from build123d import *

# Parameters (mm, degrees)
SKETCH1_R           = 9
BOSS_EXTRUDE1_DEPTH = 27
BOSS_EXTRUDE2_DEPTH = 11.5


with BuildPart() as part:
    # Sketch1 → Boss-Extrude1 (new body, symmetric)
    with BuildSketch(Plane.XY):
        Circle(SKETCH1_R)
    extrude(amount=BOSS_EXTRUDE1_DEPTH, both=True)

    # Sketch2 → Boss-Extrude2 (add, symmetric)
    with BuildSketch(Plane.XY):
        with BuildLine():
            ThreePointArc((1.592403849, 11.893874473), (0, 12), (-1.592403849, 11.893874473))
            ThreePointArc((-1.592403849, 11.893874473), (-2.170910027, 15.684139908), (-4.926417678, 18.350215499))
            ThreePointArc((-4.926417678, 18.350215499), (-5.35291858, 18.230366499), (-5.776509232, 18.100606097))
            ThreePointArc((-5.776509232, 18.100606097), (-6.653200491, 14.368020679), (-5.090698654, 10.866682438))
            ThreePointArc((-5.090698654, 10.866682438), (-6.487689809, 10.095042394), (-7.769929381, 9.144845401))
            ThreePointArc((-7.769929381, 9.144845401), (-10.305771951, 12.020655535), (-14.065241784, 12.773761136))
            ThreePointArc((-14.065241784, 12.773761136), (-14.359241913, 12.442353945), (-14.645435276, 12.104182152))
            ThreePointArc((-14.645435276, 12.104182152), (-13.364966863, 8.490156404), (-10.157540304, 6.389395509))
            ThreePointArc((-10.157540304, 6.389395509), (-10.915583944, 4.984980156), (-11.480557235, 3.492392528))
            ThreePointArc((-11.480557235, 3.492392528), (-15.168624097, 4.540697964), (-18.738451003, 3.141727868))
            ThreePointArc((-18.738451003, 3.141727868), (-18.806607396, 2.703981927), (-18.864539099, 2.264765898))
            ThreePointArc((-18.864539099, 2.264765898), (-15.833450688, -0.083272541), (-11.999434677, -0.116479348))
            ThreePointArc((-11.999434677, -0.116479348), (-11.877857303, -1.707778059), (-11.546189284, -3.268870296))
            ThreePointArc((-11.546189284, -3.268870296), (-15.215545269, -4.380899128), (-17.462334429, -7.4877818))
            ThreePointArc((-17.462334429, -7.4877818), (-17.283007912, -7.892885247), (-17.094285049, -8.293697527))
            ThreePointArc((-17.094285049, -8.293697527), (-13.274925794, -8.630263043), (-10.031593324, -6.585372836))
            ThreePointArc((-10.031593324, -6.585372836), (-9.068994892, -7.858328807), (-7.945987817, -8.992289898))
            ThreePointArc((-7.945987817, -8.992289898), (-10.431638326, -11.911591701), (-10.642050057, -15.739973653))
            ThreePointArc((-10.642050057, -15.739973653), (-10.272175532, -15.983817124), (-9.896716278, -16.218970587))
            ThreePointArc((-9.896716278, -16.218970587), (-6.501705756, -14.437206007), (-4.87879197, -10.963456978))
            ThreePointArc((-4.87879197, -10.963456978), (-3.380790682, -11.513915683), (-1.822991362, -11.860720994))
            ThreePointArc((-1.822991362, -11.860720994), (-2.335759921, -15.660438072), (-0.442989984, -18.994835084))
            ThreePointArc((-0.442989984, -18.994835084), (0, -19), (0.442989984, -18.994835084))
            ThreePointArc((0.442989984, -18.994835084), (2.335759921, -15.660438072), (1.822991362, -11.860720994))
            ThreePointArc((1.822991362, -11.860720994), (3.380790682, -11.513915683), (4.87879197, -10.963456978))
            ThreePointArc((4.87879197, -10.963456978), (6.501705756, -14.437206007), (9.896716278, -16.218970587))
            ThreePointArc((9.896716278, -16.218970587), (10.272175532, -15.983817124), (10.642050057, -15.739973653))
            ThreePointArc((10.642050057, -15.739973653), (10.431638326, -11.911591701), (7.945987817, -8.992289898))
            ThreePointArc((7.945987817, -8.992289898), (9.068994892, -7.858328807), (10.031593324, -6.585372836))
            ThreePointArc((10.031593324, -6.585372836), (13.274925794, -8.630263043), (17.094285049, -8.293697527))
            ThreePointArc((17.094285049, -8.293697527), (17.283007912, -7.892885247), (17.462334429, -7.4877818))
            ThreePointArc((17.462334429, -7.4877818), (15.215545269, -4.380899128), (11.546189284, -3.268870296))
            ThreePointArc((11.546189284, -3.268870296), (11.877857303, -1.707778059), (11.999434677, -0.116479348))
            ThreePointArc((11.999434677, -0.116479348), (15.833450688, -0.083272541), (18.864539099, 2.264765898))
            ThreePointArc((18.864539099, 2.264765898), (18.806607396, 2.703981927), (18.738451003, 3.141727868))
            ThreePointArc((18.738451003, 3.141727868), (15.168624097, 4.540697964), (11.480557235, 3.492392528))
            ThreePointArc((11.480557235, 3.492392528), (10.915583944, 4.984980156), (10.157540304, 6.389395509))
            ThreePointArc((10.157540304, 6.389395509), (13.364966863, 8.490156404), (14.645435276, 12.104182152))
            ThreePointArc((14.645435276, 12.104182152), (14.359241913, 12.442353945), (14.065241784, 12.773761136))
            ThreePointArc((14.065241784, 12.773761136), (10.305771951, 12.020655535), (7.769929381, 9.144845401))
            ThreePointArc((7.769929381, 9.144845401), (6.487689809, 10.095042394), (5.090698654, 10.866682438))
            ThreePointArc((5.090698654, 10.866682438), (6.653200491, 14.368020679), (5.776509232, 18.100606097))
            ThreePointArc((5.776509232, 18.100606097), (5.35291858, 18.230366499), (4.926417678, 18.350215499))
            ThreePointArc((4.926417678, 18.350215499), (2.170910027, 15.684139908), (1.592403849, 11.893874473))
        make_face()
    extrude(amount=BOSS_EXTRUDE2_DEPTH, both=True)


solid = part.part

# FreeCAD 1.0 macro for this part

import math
import FreeCAD as App
import Part
import Sketcher
Q = App.Units.Quantity

doc = App.newDocument("Part")
body = doc.addObject("PartDesign::Body", "Body")

# Sketch on XY plane
sketch1 = doc.addObject("Sketcher::SketchObject", "Sketch")
body.addObject(sketch1)
sketch1.AttachmentSupport = (doc.XY_Plane, [""])
sketch1.MapMode = "FlatFace"
sketch1.addGeometry(Part.Circle(App.Vector(0, 0, 0), App.Vector(0, 0, 1), 9), False)
sketch1.addConstraint([
    Sketcher.Constraint("Coincident", 0, 3, -1, 1),
    Sketcher.Constraint("Diameter", 0, Q("18 mm")),
])
pad1 = doc.addObject("PartDesign::Pad", "Pad")
body.addObject(pad1)
pad1.Profile = sketch1
pad1.Length = 54
pad1.Midplane = True

# Sketch on XY plane
sketch2 = doc.addObject("Sketcher::SketchObject", "Sketch001")
body.addObject(sketch2)
sketch2.AttachmentSupport = (doc.XY_Plane, [""])
sketch2.MapMode = "FlatFace"
sketch2.addGeometry([
    Part.ArcOfCircle(Part.Circle(App.Vector(0, 0, 0), App.Vector(0, 0, 1), 12), math.radians(82.37), math.radians(97.63)),  # 0
    Part.ArcOfCircle(Part.Circle(App.Vector(-7.5, 12.9, 0), App.Vector(0, 0, 1), 6), math.radians(-10), math.radians(65)),  # 1
    Part.ArcOfCircle(Part.Circle(App.Vector(0, 0, 0), App.Vector(0, 0, 1), 19), math.radians(105.03), math.radians(107.7)),  # 2
    Part.ArcOfCircle(Part.Circle(App.Vector(-0.7, 14.9, 0), App.Vector(0, 0, 1), 6), math.radians(148), math.radians(223)),  # 3
    Part.ArcOfCircle(Part.Circle(App.Vector(0, 0, 0), App.Vector(0, 0, 1), 12), math.radians(115.1), math.radians(130.35)),  # 4
    Part.ArcOfCircle(Part.Circle(App.Vector(-13.3, 6.8, 0), App.Vector(0, 0, 1), 6), math.radians(23), math.radians(97)),  # 5
    Part.ArcOfCircle(Part.Circle(App.Vector(0, 0, 0), App.Vector(0, 0, 1), 19), math.radians(137.75), math.radians(140.43)),  # 6
    Part.ArcOfCircle(Part.Circle(App.Vector(-8.6, 12.2, 0), App.Vector(0, 0, 1), 6), math.radians(-179), math.radians(-105)),  # 7
    Part.ArcOfCircle(Part.Circle(App.Vector(0, 0, 0), App.Vector(0, 0, 1), 12), math.radians(147.83), math.radians(163.08)),  # 8
    Part.ArcOfCircle(Part.Circle(App.Vector(-14.9, -1.5, 0), App.Vector(0, 0, 1), 6), math.radians(55), math.radians(130)),  # 9
    Part.ArcOfCircle(Part.Circle(App.Vector(0, 0, 0), App.Vector(0, 0, 1), 19), math.radians(170.48), math.radians(173.15)),  # 10
    Part.ArcOfCircle(Part.Circle(App.Vector(-13.9, 5.6, 0), App.Vector(0, 0, 1), 6), math.radians(-146), math.radians(-72)),  # 11
    Part.ArcOfCircle(Part.Circle(App.Vector(0, 0, 0), App.Vector(0, 0, 1), 12), math.radians(-179.44), math.radians(-164.19)),  # 12
    Part.ArcOfCircle(Part.Circle(App.Vector(-11.7, -9.3, 0), App.Vector(0, 0, 1), 6), math.radians(88), math.radians(163)),  # 13
    Part.ArcOfCircle(Part.Circle(App.Vector(0, 0, 0), App.Vector(0, 0, 1), 19), math.radians(-156.79), math.radians(-154.12)),  # 14
    Part.ArcOfCircle(Part.Circle(App.Vector(-14.7, -2.8, 0), App.Vector(0, 0, 1), 6), math.radians(-114), math.radians(-39)),  # 15
    Part.ArcOfCircle(Part.Circle(App.Vector(0, 0, 0), App.Vector(0, 0, 1), 12), math.radians(-146.72), math.radians(-131.47)),  # 16
    Part.ArcOfCircle(Part.Circle(App.Vector(-4.9, -14.1, 0), App.Vector(0, 0, 1), 6), math.radians(121), math.radians(195)),  # 17
    Part.ArcOfCircle(Part.Circle(App.Vector(0, 0, 0), App.Vector(0, 0, 1), 19), math.radians(-124.06), math.radians(-121.39)),  # 18
    Part.ArcOfCircle(Part.Circle(App.Vector(-10.8, -10.3, 0), App.Vector(0, 0, 1), 6), math.radians(-81), math.radians(-6)),  # 19
    Part.ArcOfCircle(Part.Circle(App.Vector(0, 0, 0), App.Vector(0, 0, 1), 12), math.radians(-113.99), math.radians(-98.74)),  # 20
    Part.ArcOfCircle(Part.Circle(App.Vector(3.6, -14.5, 0), App.Vector(0, 0, 1), 6), math.radians(154), math.radians(228)),  # 21
    Part.ArcOfCircle(Part.Circle(App.Vector(0, 0, 0), App.Vector(0, 0, 1), 19), math.radians(-91.34), math.radians(-88.66)),  # 22
    Part.ArcOfCircle(Part.Circle(App.Vector(-3.6, -14.5, 0), App.Vector(0, 0, 1), 6), math.radians(-48), math.radians(26)),  # 23
    Part.ArcOfCircle(Part.Circle(App.Vector(0, 0, 0), App.Vector(0, 0, 1), 12), math.radians(-81.26), math.radians(-66.01)),  # 24
    Part.ArcOfCircle(Part.Circle(App.Vector(10.8, -10.3, 0), App.Vector(0, 0, 1), 6), math.radians(-174), math.radians(-99)),  # 25
    Part.ArcOfCircle(Part.Circle(App.Vector(0, 0, 0), App.Vector(0, 0, 1), 19), math.radians(-58.61), math.radians(-55.94)),  # 26
    Part.ArcOfCircle(Part.Circle(App.Vector(4.9, -14.1, 0), App.Vector(0, 0, 1), 6), math.radians(-15), math.radians(59)),  # 27
    Part.ArcOfCircle(Part.Circle(App.Vector(0, 0, 0), App.Vector(0, 0, 1), 12), math.radians(-48.53), math.radians(-33.28)),  # 28
    Part.ArcOfCircle(Part.Circle(App.Vector(14.7, -2.8, 0), App.Vector(0, 0, 1), 6), math.radians(-141), math.radians(-66)),  # 29
    Part.ArcOfCircle(Part.Circle(App.Vector(0, 0, 0), App.Vector(0, 0, 1), 19), math.radians(-25.88), math.radians(-23.21)),  # 30
    Part.ArcOfCircle(Part.Circle(App.Vector(11.7, -9.3, 0), App.Vector(0, 0, 1), 6), math.radians(17), math.radians(92)),  # 31
    Part.ArcOfCircle(Part.Circle(App.Vector(0, 0, 0), App.Vector(0, 0, 1), 12), math.radians(-15.81), math.radians(-0.56)),  # 32
    Part.ArcOfCircle(Part.Circle(App.Vector(13.9, 5.6, 0), App.Vector(0, 0, 1), 6), math.radians(-108), math.radians(-34)),  # 33
    Part.ArcOfCircle(Part.Circle(App.Vector(0, 0, 0), App.Vector(0, 0, 1), 19), math.radians(6.85), math.radians(9.52)),  # 34
    Part.ArcOfCircle(Part.Circle(App.Vector(14.9, -1.5, 0), App.Vector(0, 0, 1), 6), math.radians(50), math.radians(125)),  # 35
    Part.ArcOfCircle(Part.Circle(App.Vector(0, 0, 0), App.Vector(0, 0, 1), 12), math.radians(16.92), math.radians(32.17)),  # 36
    Part.ArcOfCircle(Part.Circle(App.Vector(8.6, 12.2, 0), App.Vector(0, 0, 1), 6), math.radians(-75), math.radians(-1)),  # 37
    Part.ArcOfCircle(Part.Circle(App.Vector(0, 0, 0), App.Vector(0, 0, 1), 19), math.radians(39.57), math.radians(42.25)),  # 38
    Part.ArcOfCircle(Part.Circle(App.Vector(13.3, 6.8, 0), App.Vector(0, 0, 1), 6), math.radians(83), math.radians(157)),  # 39
    Part.ArcOfCircle(Part.Circle(App.Vector(0, 0, 0), App.Vector(0, 0, 1), 12), math.radians(49.65), math.radians(64.9)),  # 40
    Part.ArcOfCircle(Part.Circle(App.Vector(0.7, 14.9, 0), App.Vector(0, 0, 1), 6), math.radians(-43), math.radians(32)),  # 41
    Part.ArcOfCircle(Part.Circle(App.Vector(0, 0, 0), App.Vector(0, 0, 1), 19), math.radians(72.3), math.radians(74.97)),  # 42
    Part.ArcOfCircle(Part.Circle(App.Vector(7.5, 12.9, 0), App.Vector(0, 0, 1), 6), math.radians(115), math.radians(190)),  # 43
], False)
sketch2.addConstraint([
    Sketcher.Constraint("Coincident", 0, 2, 1, 1),
    Sketcher.Constraint("Coincident", 1, 2, 2, 1),
    Sketcher.Constraint("Coincident", 2, 2, 3, 1),
    Sketcher.Constraint("Coincident", 3, 2, 4, 1),
    Sketcher.Constraint("Coincident", 4, 2, 5, 1),
    Sketcher.Constraint("Coincident", 5, 2, 6, 1),
    Sketcher.Constraint("Coincident", 6, 2, 7, 1),
    Sketcher.Constraint("Coincident", 7, 2, 8, 1),
    Sketcher.Constraint("Coincident", 8, 2, 9, 1),
    Sketcher.Constraint("Coincident", 9, 2, 10, 1),
    Sketcher.Constraint("Coincident", 10, 2, 11, 1),
    Sketcher.Constraint("Coincident", 11, 2, 12, 1),
    Sketcher.Constraint("Coincident", 12, 2, 13, 1),
    Sketcher.Constraint("Coincident", 13, 2, 14, 1),
    Sketcher.Constraint("Coincident", 14, 2, 15, 1),
    Sketcher.Constraint("Coincident", 15, 2, 16, 1),
    Sketcher.Constraint("Coincident", 16, 2, 17, 1),
    Sketcher.Constraint("Coincident", 17, 2, 18, 1),
    Sketcher.Constraint("Coincident", 18, 2, 19, 1),
    Sketcher.Constraint("Coincident", 19, 2, 20, 1),
    Sketcher.Constraint("Coincident", 20, 2, 21, 1),
    Sketcher.Constraint("Coincident", 21, 2, 22, 1),
    Sketcher.Constraint("Coincident", 22, 2, 23, 1),
    Sketcher.Constraint("Coincident", 23, 2, 24, 1),
    Sketcher.Constraint("Coincident", 24, 2, 25, 1),
    Sketcher.Constraint("Coincident", 25, 2, 26, 1),
    Sketcher.Constraint("Coincident", 26, 2, 27, 1),
    Sketcher.Constraint("Coincident", 27, 2, 28, 1),
    Sketcher.Constraint("Coincident", 28, 2, 29, 1),
    Sketcher.Constraint("Coincident", 29, 2, 30, 1),
    Sketcher.Constraint("Coincident", 30, 2, 31, 1),
    Sketcher.Constraint("Coincident", 31, 2, 32, 1),
    Sketcher.Constraint("Coincident", 32, 2, 33, 1),
    Sketcher.Constraint("Coincident", 33, 2, 34, 1),
    Sketcher.Constraint("Coincident", 34, 2, 35, 1),
    Sketcher.Constraint("Coincident", 35, 2, 36, 1),
    Sketcher.Constraint("Coincident", 36, 2, 37, 1),
    Sketcher.Constraint("Coincident", 37, 2, 38, 1),
    Sketcher.Constraint("Coincident", 38, 2, 39, 1),
    Sketcher.Constraint("Coincident", 39, 2, 40, 1),
    Sketcher.Constraint("Coincident", 40, 2, 41, 1),
    Sketcher.Constraint("Coincident", 41, 2, 42, 1),
    Sketcher.Constraint("Coincident", 42, 2, 43, 1),
    Sketcher.Constraint("Coincident", 43, 2, 0, 1),
    Sketcher.Constraint("Coincident", 0, 3, -1, 1),
    Sketcher.Constraint("Coincident", 2, 3, -1, 1),
    Sketcher.Constraint("Coincident", 4, 3, -1, 1),
    Sketcher.Constraint("Coincident", 6, 3, -1, 1),
    Sketcher.Constraint("Coincident", 8, 3, -1, 1),
    Sketcher.Constraint("Coincident", 10, 3, -1, 1),
    Sketcher.Constraint("Coincident", 12, 3, -1, 1),
    Sketcher.Constraint("Coincident", 14, 3, -1, 1),
    Sketcher.Constraint("Coincident", 16, 3, -1, 1),
    Sketcher.Constraint("Coincident", 18, 3, -1, 1),
    Sketcher.Constraint("Coincident", 20, 3, -1, 1),
    Sketcher.Constraint("Coincident", 22, 3, -1, 1),
    Sketcher.Constraint("Coincident", 24, 3, -1, 1),
    Sketcher.Constraint("Coincident", 26, 3, -1, 1),
    Sketcher.Constraint("Coincident", 28, 3, -1, 1),
    Sketcher.Constraint("Coincident", 30, 3, -1, 1),
    Sketcher.Constraint("Coincident", 32, 3, -1, 1),
    Sketcher.Constraint("Coincident", 34, 3, -1, 1),
    Sketcher.Constraint("Coincident", 36, 3, -1, 1),
    Sketcher.Constraint("Coincident", 38, 3, -1, 1),
    Sketcher.Constraint("Coincident", 40, 3, -1, 1),
    Sketcher.Constraint("Coincident", 42, 3, -1, 1),
    Sketcher.Constraint("Equal", 1, 3),
    Sketcher.Constraint("Equal", 0, 4),
    Sketcher.Constraint("Equal", 3, 5),
    Sketcher.Constraint("Equal", 2, 6),
    Sketcher.Constraint("Equal", 5, 7),
    Sketcher.Constraint("Equal", 4, 8),
    Sketcher.Constraint("Equal", 7, 9),
    Sketcher.Constraint("Equal", 6, 10),
    Sketcher.Constraint("Equal", 9, 11),
    Sketcher.Constraint("Equal", 8, 12),
    Sketcher.Constraint("Equal", 11, 13),
    Sketcher.Constraint("Equal", 10, 14),
    Sketcher.Constraint("Equal", 13, 15),
    Sketcher.Constraint("Equal", 12, 16),
    Sketcher.Constraint("Equal", 15, 17),
    Sketcher.Constraint("Equal", 14, 18),
    Sketcher.Constraint("Equal", 17, 19),
    Sketcher.Constraint("Equal", 16, 20),
    Sketcher.Constraint("Equal", 19, 21),
    Sketcher.Constraint("Equal", 18, 22),
    Sketcher.Constraint("Equal", 21, 23),
    Sketcher.Constraint("Equal", 20, 24),
    Sketcher.Constraint("Equal", 23, 25),
    Sketcher.Constraint("Equal", 22, 26),
    Sketcher.Constraint("Equal", 25, 27),
    Sketcher.Constraint("Equal", 24, 28),
    Sketcher.Constraint("Equal", 27, 29),
    Sketcher.Constraint("Equal", 26, 30),
    Sketcher.Constraint("Equal", 29, 31),
    Sketcher.Constraint("Equal", 28, 32),
    Sketcher.Constraint("Equal", 31, 33),
    Sketcher.Constraint("Equal", 30, 34),
    Sketcher.Constraint("Equal", 33, 35),
    Sketcher.Constraint("Equal", 32, 36),
    Sketcher.Constraint("Equal", 35, 37),
    Sketcher.Constraint("Equal", 34, 38),
    Sketcher.Constraint("Equal", 37, 39),
    Sketcher.Constraint("Equal", 36, 40),
    Sketcher.Constraint("Equal", 39, 41),
    Sketcher.Constraint("Equal", 38, 42),
    Sketcher.Constraint("Equal", 41, 43),
    Sketcher.Constraint("Symmetric", 21, 3, 23, 3, -2),
    Sketcher.Constraint("Symmetric", 19, 3, 25, 3, -2),
    Sketcher.Constraint("Symmetric", 17, 3, 27, 3, -2),
    Sketcher.Constraint("Symmetric", 15, 3, 29, 3, -2),
    Sketcher.Constraint("Symmetric", 13, 3, 31, 3, -2),
    Sketcher.Constraint("Symmetric", 11, 3, 33, 3, -2),
    Sketcher.Constraint("Symmetric", 9, 3, 35, 3, -2),
    Sketcher.Constraint("Symmetric", 7, 3, 37, 3, -2),
    Sketcher.Constraint("Symmetric", 5, 3, 39, 3, -2),
    Sketcher.Constraint("Symmetric", 3, 3, 41, 3, -2),
    Sketcher.Constraint("Symmetric", 1, 3, 43, 3, -2),
    Sketcher.Constraint("Radius", 0, Q("12 mm")),
    Sketcher.Constraint("Radius", 1, Q("6 mm")),
    Sketcher.Constraint("Radius", 2, Q("18.999998 mm")),
    Sketcher.Constraint("DistanceX", 11, 3, -1, 1, Q("13.867202 mm")),
    Sketcher.Constraint("DistanceY", -1, 1, 11, 3, Q("5.585402 mm")),
    Sketcher.Constraint("DistanceX", 3, 2, -1, 1, Q("5.090699 mm")),
    Sketcher.Constraint("DistanceX", 1, 3, -1, 1, Q("7.502059 mm")),
    Sketcher.Constraint("DistanceY", -1, 1, 1, 3, Q("12.931168 mm")),
    Sketcher.Constraint("DistanceY", -1, 1, 3, 3, Q("14.93431 mm")),
    Sketcher.Constraint("DistanceX", 5, 3, -1, 1, Q("13.302251 mm")),
    Sketcher.Constraint("DistanceY", -1, 1, 5, 3, Q("6.822472 mm")),
    Sketcher.Constraint("DistanceY", 9, 3, -1, 1, Q("1.452311 mm")),
    Sketcher.Constraint("DistanceX", 15, 3, -1, 1, Q("14.685529 mm")),
    Sketcher.Constraint("DistanceX", 17, 3, -1, 1, Q("4.859921 mm")),
    Sketcher.Constraint("DistanceY", 19, 3, -1, 1, Q("10.293791 mm")),
    Sketcher.Constraint("DistanceX", -1, 1, 21, 3, Q("3.555042 mm")),
    Sketcher.Constraint("DistanceY", 21, 3, -1, 1, Q("14.520939 mm")),
    Sketcher.Constraint("DistanceX", 7, 2, -1, 1, Q("10.15754 mm")),
    Sketcher.Constraint("DistanceX", 9, 2, -1, 1, Q("18.738451 mm")),
    Sketcher.Constraint("DistanceX", 12, 2, -1, 1, Q("11.546189 mm")),
    Sketcher.Constraint("DistanceY", 13, 2, -1, 1, Q("7.487782 mm")),
    Sketcher.Constraint("DistanceY", 16, 2, -1, 1, Q("8.99229 mm")),
    Sketcher.Constraint("DistanceY", 18, 2, -1, 1, Q("16.218971 mm")),
    Sketcher.Constraint("DistanceX", 7, 3, -1, 1, Q("8.646137 mm")),
    Sketcher.Constraint("DistanceY", 15, 3, -1, 1, Q("2.798437 mm")),
])
pad2 = doc.addObject("PartDesign::Pad", "Pad001")
body.addObject(pad2)
pad2.Profile = sketch2
pad2.Length = 23
pad2.Midplane = True

doc.recompute()
